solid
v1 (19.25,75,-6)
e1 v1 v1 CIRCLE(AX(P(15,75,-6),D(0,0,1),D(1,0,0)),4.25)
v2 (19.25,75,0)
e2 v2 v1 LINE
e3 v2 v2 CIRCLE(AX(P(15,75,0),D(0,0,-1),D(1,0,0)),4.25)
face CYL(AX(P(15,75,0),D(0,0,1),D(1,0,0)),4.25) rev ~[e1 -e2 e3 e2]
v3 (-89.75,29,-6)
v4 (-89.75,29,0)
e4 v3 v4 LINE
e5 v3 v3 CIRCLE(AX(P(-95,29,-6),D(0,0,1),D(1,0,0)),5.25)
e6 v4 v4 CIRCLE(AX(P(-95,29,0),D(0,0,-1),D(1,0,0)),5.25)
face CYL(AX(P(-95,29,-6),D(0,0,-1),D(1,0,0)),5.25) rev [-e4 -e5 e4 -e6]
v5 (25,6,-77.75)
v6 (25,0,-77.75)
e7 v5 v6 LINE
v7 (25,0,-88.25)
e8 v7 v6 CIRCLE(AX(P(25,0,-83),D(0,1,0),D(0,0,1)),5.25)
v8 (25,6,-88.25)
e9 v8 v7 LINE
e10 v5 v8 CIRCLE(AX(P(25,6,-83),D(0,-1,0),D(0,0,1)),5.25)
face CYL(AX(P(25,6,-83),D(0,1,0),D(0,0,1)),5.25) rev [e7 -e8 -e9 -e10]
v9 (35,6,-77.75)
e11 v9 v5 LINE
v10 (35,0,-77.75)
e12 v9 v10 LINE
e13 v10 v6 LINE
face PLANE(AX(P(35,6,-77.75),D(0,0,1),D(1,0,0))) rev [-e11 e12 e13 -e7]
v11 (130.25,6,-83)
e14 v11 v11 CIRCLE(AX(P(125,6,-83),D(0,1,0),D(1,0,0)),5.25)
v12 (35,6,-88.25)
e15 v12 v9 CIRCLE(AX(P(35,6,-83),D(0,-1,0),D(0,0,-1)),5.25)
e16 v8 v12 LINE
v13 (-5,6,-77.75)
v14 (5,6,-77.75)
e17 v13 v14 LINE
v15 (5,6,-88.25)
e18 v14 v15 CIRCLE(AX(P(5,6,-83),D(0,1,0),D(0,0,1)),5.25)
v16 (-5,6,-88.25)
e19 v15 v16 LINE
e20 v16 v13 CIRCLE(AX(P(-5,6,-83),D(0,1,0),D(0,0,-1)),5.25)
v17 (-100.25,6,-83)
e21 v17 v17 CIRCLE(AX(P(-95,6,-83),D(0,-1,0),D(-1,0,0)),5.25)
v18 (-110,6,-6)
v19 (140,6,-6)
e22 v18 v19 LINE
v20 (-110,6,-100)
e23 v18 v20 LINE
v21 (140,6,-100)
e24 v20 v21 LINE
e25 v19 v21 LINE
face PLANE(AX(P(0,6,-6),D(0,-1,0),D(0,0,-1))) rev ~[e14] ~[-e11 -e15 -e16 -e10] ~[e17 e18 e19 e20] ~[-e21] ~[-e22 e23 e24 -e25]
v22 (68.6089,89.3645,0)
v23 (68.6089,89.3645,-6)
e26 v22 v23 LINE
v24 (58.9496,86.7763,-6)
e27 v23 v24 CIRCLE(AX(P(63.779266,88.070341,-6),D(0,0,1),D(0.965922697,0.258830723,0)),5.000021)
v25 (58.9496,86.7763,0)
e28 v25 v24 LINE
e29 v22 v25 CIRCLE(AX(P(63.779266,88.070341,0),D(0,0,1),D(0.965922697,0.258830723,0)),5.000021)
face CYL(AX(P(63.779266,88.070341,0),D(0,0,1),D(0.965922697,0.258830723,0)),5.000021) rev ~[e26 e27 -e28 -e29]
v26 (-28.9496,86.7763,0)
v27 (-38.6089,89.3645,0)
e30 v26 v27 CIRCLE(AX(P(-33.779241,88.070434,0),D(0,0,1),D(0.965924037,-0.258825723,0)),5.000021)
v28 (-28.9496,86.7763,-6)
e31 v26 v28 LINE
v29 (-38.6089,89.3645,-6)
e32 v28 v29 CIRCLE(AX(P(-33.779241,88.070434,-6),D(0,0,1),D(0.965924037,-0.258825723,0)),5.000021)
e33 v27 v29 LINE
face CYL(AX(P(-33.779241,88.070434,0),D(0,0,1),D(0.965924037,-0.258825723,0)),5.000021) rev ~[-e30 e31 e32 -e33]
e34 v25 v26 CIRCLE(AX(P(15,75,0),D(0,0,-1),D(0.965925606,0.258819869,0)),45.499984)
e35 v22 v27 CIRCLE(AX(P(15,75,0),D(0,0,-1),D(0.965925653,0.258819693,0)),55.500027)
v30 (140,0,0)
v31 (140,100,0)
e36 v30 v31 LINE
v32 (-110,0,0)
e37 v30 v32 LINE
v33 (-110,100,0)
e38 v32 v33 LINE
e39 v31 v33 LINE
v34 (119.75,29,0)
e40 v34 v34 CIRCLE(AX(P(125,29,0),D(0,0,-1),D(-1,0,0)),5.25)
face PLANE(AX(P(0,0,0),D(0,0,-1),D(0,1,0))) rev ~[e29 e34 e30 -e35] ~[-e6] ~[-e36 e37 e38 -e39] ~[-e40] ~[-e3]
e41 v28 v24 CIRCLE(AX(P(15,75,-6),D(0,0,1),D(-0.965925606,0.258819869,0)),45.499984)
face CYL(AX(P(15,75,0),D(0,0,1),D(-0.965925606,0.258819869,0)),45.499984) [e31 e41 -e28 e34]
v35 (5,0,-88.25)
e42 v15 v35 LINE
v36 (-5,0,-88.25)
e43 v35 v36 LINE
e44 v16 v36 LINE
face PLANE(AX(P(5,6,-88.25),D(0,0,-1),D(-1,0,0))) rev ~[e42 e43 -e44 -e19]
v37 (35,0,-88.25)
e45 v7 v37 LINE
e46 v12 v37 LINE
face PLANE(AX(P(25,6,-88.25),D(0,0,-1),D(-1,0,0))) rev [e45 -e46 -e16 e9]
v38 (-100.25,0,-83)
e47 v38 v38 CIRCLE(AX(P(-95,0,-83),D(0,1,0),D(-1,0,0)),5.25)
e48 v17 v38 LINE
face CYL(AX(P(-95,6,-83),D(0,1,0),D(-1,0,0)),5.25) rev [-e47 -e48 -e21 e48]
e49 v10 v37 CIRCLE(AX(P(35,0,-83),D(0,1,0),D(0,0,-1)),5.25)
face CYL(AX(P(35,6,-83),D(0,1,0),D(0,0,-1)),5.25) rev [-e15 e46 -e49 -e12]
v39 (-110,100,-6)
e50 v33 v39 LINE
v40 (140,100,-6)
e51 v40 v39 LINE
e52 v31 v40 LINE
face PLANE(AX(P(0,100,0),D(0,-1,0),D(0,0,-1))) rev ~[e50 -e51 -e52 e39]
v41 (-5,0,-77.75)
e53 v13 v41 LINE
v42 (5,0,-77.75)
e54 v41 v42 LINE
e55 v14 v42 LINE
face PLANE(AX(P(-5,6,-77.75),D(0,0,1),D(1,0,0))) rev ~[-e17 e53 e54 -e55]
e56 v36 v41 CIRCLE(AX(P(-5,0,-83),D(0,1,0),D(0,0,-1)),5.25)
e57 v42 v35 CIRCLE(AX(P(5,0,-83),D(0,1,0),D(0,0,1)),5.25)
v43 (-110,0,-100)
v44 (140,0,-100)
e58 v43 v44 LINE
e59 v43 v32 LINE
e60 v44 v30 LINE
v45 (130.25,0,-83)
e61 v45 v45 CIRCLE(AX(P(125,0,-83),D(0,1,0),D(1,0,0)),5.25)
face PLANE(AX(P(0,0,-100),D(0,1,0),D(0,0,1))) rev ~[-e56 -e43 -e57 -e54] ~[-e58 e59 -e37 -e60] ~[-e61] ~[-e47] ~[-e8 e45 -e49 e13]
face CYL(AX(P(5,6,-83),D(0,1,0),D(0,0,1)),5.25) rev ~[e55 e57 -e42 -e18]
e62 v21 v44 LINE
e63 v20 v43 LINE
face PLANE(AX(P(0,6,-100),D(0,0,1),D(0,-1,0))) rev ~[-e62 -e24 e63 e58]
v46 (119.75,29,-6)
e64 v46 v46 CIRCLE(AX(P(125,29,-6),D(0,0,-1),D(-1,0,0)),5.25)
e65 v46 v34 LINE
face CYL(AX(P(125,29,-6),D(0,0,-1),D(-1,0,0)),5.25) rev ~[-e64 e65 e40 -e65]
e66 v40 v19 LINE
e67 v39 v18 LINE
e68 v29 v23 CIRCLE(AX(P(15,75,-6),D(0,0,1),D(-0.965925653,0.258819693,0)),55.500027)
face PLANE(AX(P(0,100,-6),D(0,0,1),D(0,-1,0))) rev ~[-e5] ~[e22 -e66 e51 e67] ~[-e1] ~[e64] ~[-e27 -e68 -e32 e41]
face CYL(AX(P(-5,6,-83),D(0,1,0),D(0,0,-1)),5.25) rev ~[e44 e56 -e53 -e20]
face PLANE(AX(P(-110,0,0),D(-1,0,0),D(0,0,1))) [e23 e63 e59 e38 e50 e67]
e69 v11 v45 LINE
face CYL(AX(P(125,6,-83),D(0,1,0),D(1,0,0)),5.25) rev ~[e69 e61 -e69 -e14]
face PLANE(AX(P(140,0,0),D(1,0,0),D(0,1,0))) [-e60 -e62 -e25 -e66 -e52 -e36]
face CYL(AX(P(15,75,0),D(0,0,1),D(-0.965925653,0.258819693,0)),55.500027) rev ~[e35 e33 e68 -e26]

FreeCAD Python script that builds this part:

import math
import FreeCAD as App
import Part
import Sketcher
from FreeCAD import Vector


def add_polygon(sketch, points):
    """Adds a closed chain of lines whose ends are joined by coincident constraints."""
    first, n = sketch.GeometryCount, len(points)
    for a, b in zip(points, points[1:] + points[:1]):
        sketch.addGeometry(Part.LineSegment(App.Vector(*a, 0), App.Vector(*b, 0)), False)
    for i in range(n):
        sketch.addConstraint(Sketcher.Constraint("Coincident", first + i, 2, first + (i + 1) % n, 1))

doc = App.newDocument("Part")
body = doc.addObject("PartDesign::Body", "Body")

# Sketch on YZ plane
sketch1 = doc.addObject("Sketcher::SketchObject", "Sketch")
body.addObject(sketch1)
sketch1.AttachmentSupport = (doc.YZ_Plane, [""])
sketch1.MapMode = "FlatFace"
add_polygon(sketch1, [(100, 0), (0, 0), (0, -100), (6, -100), (6, -6), (100, -6)])  # lines 0-5
sketch1.addConstraint([
    Sketcher.Constraint("Horizontal", 0),
    Sketcher.Constraint("Vertical", 1),
    Sketcher.Constraint("Horizontal", 2),
    Sketcher.Constraint("Vertical", 3),
    Sketcher.Constraint("Horizontal", 4),
    Sketcher.Constraint("Vertical", 5),
    Sketcher.Constraint("Coincident", 0, 2, -1, 1),
    Sketcher.Constraint("Equal", 0, 1),
    Sketcher.Constraint("Equal", 4, 3),
    Sketcher.Constraint("DistanceX", 0, 2, 0, 1, 100.0),
    Sketcher.Constraint("DistanceX", 2, 1, 2, 2, 6.0),
])
pad1 = doc.addObject("PartDesign::Pad", "Pad")
body.addObject(pad1)
pad1.Profile = sketch1
pad1.Length = 140

# Sketch on XY plane
sketch2 = doc.addObject("Sketcher::SketchObject", "Sketch001")
body.addObject(sketch2)
sketch2.AttachmentSupport = (doc.XY_Plane, [""])
sketch2.MapMode = "FlatFace"
sketch2.AttachmentOffset = App.Placement(Vector(0, 0, -6), App.Rotation())
sketch2.addGeometry(Part.Circle(Vector(125, 29, 0), Vector(0, 0, 1), 5.25), False)
sketch2.addConstraint([
    Sketcher.Constraint("Diameter", 0, 10.5),
    Sketcher.Constraint("DistanceX", -1, 1, 0, 3, 125.0),
    Sketcher.Constraint("DistanceY", -1, 1, 0, 3, 29.0),
])
pocket1 = doc.addObject("PartDesign::Pocket", "Pocket")
body.addObject(pocket1)
pocket1.Profile = sketch2
pocket1.Type = "ThroughAll"
pocket1.Reversed = True

# Sketch on YZ plane
sketch3 = doc.addObject("Sketcher::SketchObject", "Sketch002")
body.addObject(sketch3)
sketch3.AttachmentSupport = (doc.YZ_Plane, [""])
sketch3.MapMode = "FlatFace"
add_polygon(sketch3, [(0, -100), (0, 0), (100, 0), (100, -6), (6, -6), (6, -100)])  # lines 0-5
sketch3.addConstraint([
    Sketcher.Constraint("Vertical", 0),
    Sketcher.Constraint("Horizontal", 1),
    Sketcher.Constraint("Vertical", 2),
    Sketcher.Constraint("Horizontal", 3),
    Sketcher.Constraint("Vertical", 4),
    Sketcher.Constraint("Horizontal", 5),
    Sketcher.Constraint("Coincident", 0, 2, -1, 1),
    Sketcher.Constraint("Equal", 1, 0),
    Sketcher.Constraint("Equal", 5, 2),
    Sketcher.Constraint("DistanceX", 1, 1, 1, 2, 100.0),
    Sketcher.Constraint("DistanceX", 3, 2, 3, 1, 94.0),
])
pad2 = doc.addObject("PartDesign::Pad", "Pad001")
body.addObject(pad2)
pad2.Profile = sketch3
pad2.Length = 110
pad2.Reversed = True

# Sketch on XZ plane
sketch4 = doc.addObject("Sketcher::SketchObject", "Sketch003")
body.addObject(sketch4)
sketch4.AttachmentSupport = (doc.XZ_Plane, [""])
sketch4.MapMode = "FlatFace"
sketch4.AttachmentOffset = App.Placement(Vector(0, 0, -6), App.Rotation())
sketch4.addGeometry([
    Part.LineSegment(Vector(-5, -77.75, 0), Vector(5, -77.75, 0)),
    Part.ArcOfCircle(Part.Circle(Vector(5, -83, 0), Vector(0, 0, 1), 5.25), math.radians(-90), math.radians(90)),
    Part.LineSegment(Vector(5, -88.25, 0), Vector(-5, -88.25, 0)),
    Part.ArcOfCircle(Part.Circle(Vector(-5, -83, 0), Vector(0, 0, 1), 5.25), math.radians(90), math.radians(270)),
], False)
sketch4.addConstraint([
    Sketcher.Constraint("Tangent", 0, 2, 1, 2),
    Sketcher.Constraint("Tangent", 1, 1, 2, 1),
    Sketcher.Constraint("Tangent", 2, 2, 3, 2),
    Sketcher.Constraint("Tangent", 3, 1, 0, 1),
    Sketcher.Constraint("Horizontal", 0),
    Sketcher.Constraint("Horizontal", 2),
    Sketcher.Constraint("DistanceX", 0, 1, 0, 2, 10.0),
    Sketcher.Constraint("Radius", 1, 5.25),
    Sketcher.Constraint("DistanceX", -1, 1, 1, 3, 5.0),
    Sketcher.Constraint("DistanceY", 1, 3, -1, 1, 83.0),
])
pocket2 = doc.addObject("PartDesign::Pocket", "Pocket001")
body.addObject(pocket2)
pocket2.Profile = sketch4
pocket2.Type = "ThroughAll"
pocket2.Reversed = True

# Sketch on XY plane
sketch5 = doc.addObject("Sketcher::SketchObject", "Sketch004")
body.addObject(sketch5)
sketch5.AttachmentSupport = (doc.XY_Plane, [""])
sketch5.MapMode = "FlatFace"
sketch5.addGeometry([
    Part.Circle(Vector(15, 75, 0), Vector(0, 0, 1), 4.25),  # 0
    Part.ArcOfCircle(Part.Circle(Vector(63.7793, 88.0704, 0), Vector(0, 0, 1), 4.999973), math.radians(15.000139), math.radians(194.999843)),  # 1
    Part.ArcOfCircle(Part.Circle(Vector(15, 75, 0), Vector(0, 0, 1), 45.499984), math.radians(164.999951), math.radians(375.000049)),  # 2
    Part.ArcOfCircle(Part.Circle(Vector(-33.7793, 88.0704, 0), Vector(0, 0, 1), 5.00007), math.radians(-14.999843), math.radians(164.999861)),  # 3
    Part.ArcOfCircle(Part.Circle(Vector(15, 75, 0), Vector(0, 0, 1), 55.500027), math.radians(164.999962), math.radians(375.000038)),  # 4
], False)
sketch5.addConstraint([
    Sketcher.Constraint("Tangent", 1, 2, 2, 2),
    Sketcher.Constraint("Tangent", 2, 1, 3, 1),
    Sketcher.Constraint("Tangent", 3, 2, 4, 1),
    Sketcher.Constraint("Tangent", 4, 2, 1, 1),
    Sketcher.Constraint("Coincident", 2, 3, 0, 3),
    Sketcher.Constraint("Coincident", 4, 3, 0, 3),
    Sketcher.Constraint("Horizontal", 1, 3, 3, 3),
    Sketcher.Constraint("Radius", 1, 5.0),
    Sketcher.Constraint("Diameter", 0, 8.5),
    Sketcher.Constraint("Radius", 2, 45.5),
    Sketcher.Constraint("DistanceX", -1, 1, 0, 3, 15.0),
    Sketcher.Constraint("DistanceY", -1, 1, 0, 3, 75.0),
    Sketcher.Constraint("DistanceX", 3, 2, -1, 1, 38.609),
])
pocket3 = doc.addObject("PartDesign::Pocket", "Pocket002")
body.addObject(pocket3)
pocket3.Profile = sketch5
pocket3.Type = "ThroughAll"
doc.recompute()

datumplane = doc.addObject("PartDesign::Plane", "DatumPlane")
body.addObject(datumplane)
datumplane.AttachmentSupport = (doc.YZ_Plane, [""])
datumplane.MapMode = "FlatFace"
datumplane.AttachmentOffset = App.Placement(Vector(0, 0, 15), App.Rotation())
mirrored = doc.addObject("PartDesign::Mirrored", "Mirrored")
body.addObject(mirrored)
mirrored.Originals = [pocket2, pocket1]
mirrored.MirrorPlane = (datumplane, [""])
body.Tip = mirrored

# Sketch on XZ plane
sketch6 = doc.addObject("Sketcher::SketchObject", "Sketch005")
body.addObject(sketch6)
sketch6.AttachmentSupport = (doc.XZ_Plane, [""])
sketch6.MapMode = "FlatFace"
sketch6.AttachmentOffset = App.Placement(Vector(0, 0, -6), App.Rotation())
sketch6.addGeometry(Part.Circle(Vector(125, -83, 0), Vector(0, 0, 1), 5.25), False)
sketch6.addConstraint([
    Sketcher.Constraint("Diameter", 0, 10.5),
    Sketcher.Constraint("DistanceX", -1, 1, 0, 3, 125.0),
    Sketcher.Constraint("DistanceY", 0, 3, -1, 1, 83.0),
])
pocket4 = doc.addObject("PartDesign::Pocket", "Pocket003")
body.addObject(pocket4)
pocket4.Profile = sketch6
pocket4.Type = "ThroughAll"
pocket4.Reversed = True
doc.recompute()

datumplane2 = doc.addObject("PartDesign::Plane", "DatumPlane001")
body.addObject(datumplane2)
datumplane2.AttachmentSupport = (doc.YZ_Plane, [""])
datumplane2.MapMode = "FlatFace"
datumplane2.AttachmentOffset = App.Placement(Vector(0, 0, 15), App.Rotation())
mirrored2 = doc.addObject("PartDesign::Mirrored", "Mirrored001")
body.addObject(mirrored2)
mirrored2.Originals = [pocket4]
mirrored2.MirrorPlane = (datumplane2, [""])
body.Tip = mirrored2

doc.recompute()
